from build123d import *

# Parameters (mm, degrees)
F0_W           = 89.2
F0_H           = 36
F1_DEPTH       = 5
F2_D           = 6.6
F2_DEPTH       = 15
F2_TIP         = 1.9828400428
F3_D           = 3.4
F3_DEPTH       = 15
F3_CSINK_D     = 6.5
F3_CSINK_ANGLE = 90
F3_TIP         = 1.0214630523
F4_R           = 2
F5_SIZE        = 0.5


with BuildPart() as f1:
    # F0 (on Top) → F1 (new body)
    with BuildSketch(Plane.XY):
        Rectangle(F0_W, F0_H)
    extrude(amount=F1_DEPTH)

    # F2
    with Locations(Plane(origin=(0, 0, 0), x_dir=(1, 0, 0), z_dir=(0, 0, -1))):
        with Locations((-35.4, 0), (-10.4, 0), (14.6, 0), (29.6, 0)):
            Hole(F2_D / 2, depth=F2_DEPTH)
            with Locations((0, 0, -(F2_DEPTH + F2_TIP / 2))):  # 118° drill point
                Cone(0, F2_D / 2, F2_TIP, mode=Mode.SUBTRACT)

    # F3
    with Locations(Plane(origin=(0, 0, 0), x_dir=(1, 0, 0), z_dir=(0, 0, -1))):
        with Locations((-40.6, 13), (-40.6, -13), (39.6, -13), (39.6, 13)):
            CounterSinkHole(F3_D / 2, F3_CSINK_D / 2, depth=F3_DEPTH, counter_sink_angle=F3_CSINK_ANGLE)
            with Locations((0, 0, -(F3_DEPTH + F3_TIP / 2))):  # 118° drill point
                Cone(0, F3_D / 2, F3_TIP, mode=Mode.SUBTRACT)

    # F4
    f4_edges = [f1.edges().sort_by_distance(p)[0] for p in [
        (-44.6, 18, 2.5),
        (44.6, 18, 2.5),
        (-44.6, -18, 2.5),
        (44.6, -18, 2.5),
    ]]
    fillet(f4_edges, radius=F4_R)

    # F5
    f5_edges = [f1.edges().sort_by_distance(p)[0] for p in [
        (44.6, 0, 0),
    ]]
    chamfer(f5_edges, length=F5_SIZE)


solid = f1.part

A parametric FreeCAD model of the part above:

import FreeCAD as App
import Part
import Sketcher
from FreeCAD import Vector


def edges_at(feature, points):
    """Names of the edges that pass closest to the given points."""
    edges = feature.Shape.Edges
    near = lambda p: min(range(len(edges)), key=lambda i: edges[i].distToShape(Part.Vertex(*p))[0])
    return sorted({f"Edge{near(p) + 1}" for p in points})

doc = App.newDocument("Part")
body = doc.addObject("PartDesign::Body", "Body")

# Sketch on XY plane
sketch1 = doc.addObject("Sketcher::SketchObject", "Sketch")
body.addObject(sketch1)
sketch1.AttachmentSupport = (doc.XY_Plane, [""])
sketch1.MapMode = "FlatFace"
sketch1.addGeometry([
    Part.LineSegment(Vector(-45, 18, 0), Vector(-45, -18, 0)),
    Part.LineSegment(Vector(-45, -18, 0), Vector(45, -18, 0)),
    Part.LineSegment(Vector(45, -18, 0), Vector(45, 18, 0)),
    Part.LineSegment(Vector(45, 18, 0), Vector(-45, 18, 0)),
], False)
sketch1.addConstraint([
    Sketcher.Constraint("Coincident", 0, 2, 1, 1),
    Sketcher.Constraint("Coincident", 1, 2, 2, 1),
    Sketcher.Constraint("Coincident", 2, 2, 3, 1),
    Sketcher.Constraint("Coincident", 3, 2, 0, 1),
    Sketcher.Constraint("Vertical", 0),
    Sketcher.Constraint("Horizontal", 1),
    Sketcher.Constraint("Vertical", 2),
    Sketcher.Constraint("Horizontal", 3),
    Sketcher.Constraint("Symmetric", 0, 2, 2, 2, -1, 1),
    Sketcher.Constraint("DistanceY", 0, 2, 0, 1, 36.0),
    Sketcher.Constraint("DistanceX", 1, 1, 1, 2, 89.2),
])
pad1 = doc.addObject("PartDesign::Pad", "Pad")
body.addObject(pad1)
pad1.Profile = sketch1
pad1.Length = 5

# Sketch on XY plane
sketch2 = doc.addObject("Sketcher::SketchObject", "Sketch001")
body.addObject(sketch2)
sketch2.AttachmentSupport = (doc.XY_Plane, [""])
sketch2.MapMode = "FlatFace"
sketch2.addGeometry([
    Part.Circle(Vector(-35.4, 0, 0), Vector(0, 0, 1), 3.3),
    Part.Circle(Vector(-10.4, 0, 0), Vector(0, 0, 1), 3.3),
    Part.Circle(Vector(14.6, 0, 0), Vector(0, 0, 1), 3.3),
    Part.Circle(Vector(29.6, 0, 0), Vector(0, 0, 1), 3.3),
], False)
sketch2.addConstraint([
    Sketcher.Constraint("Equal", 0, 1),
    Sketcher.Constraint("Equal", 1, 2),
    Sketcher.Constraint("Equal", 2, 3),
    Sketcher.Constraint("PointOnObject", 0, 3, -1),
    Sketcher.Constraint("PointOnObject", 1, 3, -1),
    Sketcher.Constraint("PointOnObject", 2, 3, -1),
    Sketcher.Constraint("PointOnObject", 3, 3, -1),
    Sketcher.Constraint("Diameter", 0, 6.6),
    Sketcher.Constraint("DistanceX", 0, 3, 1, 3, 25.0),
    Sketcher.Constraint("DistanceX", 1, 3, 2, 3, 25.0),
    Sketcher.Constraint("DistanceX", 2, 3, 3, 3, 15.0),
    Sketcher.Constraint("DistanceX", 0, 3, -1, 1, 35.4),
])
doc.recompute()
hole = doc.addObject("PartDesign::Hole", "Hole")
body.addObject(hole)
hole.Profile = sketch2
hole.ThreadType = "None"
hole.Diameter = 6.6
hole.DepthType = "Dimension"
hole.Depth = 15
hole.DrillPoint = "Angled"
hole.DrillPointAngle = 118
hole.Reversed = True

# Sketch on XY plane
sketch3 = doc.addObject("Sketcher::SketchObject", "Sketch002")
body.addObject(sketch3)
sketch3.AttachmentSupport = (doc.XY_Plane, [""])
sketch3.MapMode = "FlatFace"
sketch3.addGeometry([
    Part.Circle(Vector(-40.6, -13, 0), Vector(0, 0, 1), 1.7),
    Part.Circle(Vector(-40.6, 13, 0), Vector(0, 0, 1), 1.7),
    Part.Circle(Vector(39.6, 13, 0), Vector(0, 0, 1), 1.7),
    Part.Circle(Vector(39.6, -13, 0), Vector(0, 0, 1), 1.7),
], False)
sketch3.addConstraint([
    Sketcher.Constraint("Equal", 0, 1),
    Sketcher.Constraint("Equal", 1, 2),
    Sketcher.Constraint("Equal", 2, 3),
    Sketcher.Constraint("Symmetric", 0, 3, 1, 3, -1),
    Sketcher.Constraint("Symmetric", 2, 3, 3, 3, -1),
    Sketcher.Constraint("Horizontal", 1, 3, 2, 3),
    Sketcher.Constraint("Diameter", 0, 3.4),
    Sketcher.Constraint("DistanceY", 0, 3, -1, 1, 13.0),
    Sketcher.Constraint("DistanceX", 0, 3, -1, 1, 40.6),
    Sketcher.Constraint("DistanceX", -1, 1, 2, 3, 39.6),
])
doc.recompute()
hole2 = doc.addObject("PartDesign::Hole", "Hole001")
body.addObject(hole2)
hole2.Profile = sketch3
hole2.ThreadType = "None"
hole2.Diameter = 3.4
hole2.DepthType = "Dimension"
hole2.Depth = 15
hole2.DrillPoint = "Angled"
hole2.DrillPointAngle = 118
hole2.HoleCutType = "Countersink"
hole2.HoleCutDiameter = 6.5
hole2.HoleCutCountersinkAngle = 90
hole2.Reversed = True
doc.recompute()

fillet = doc.addObject("PartDesign::Fillet", "Fillet")
body.addObject(fillet)
fillet.Base = (hole2, edges_at(hole2, [
    (-44.6, 18, 2.5),
    (44.6, 18, 2.5),
    (-44.6, -18, 2.5),
    (44.6, -18, 2.5),
]))
fillet.Radius = 2
doc.recompute()

chamfer = doc.addObject("PartDesign::Chamfer", "Chamfer")
body.addObject(chamfer)
chamfer.Base = (fillet, edges_at(fillet, [(44.6, 0, 0)]))
chamfer.Size = 0.5

doc.recompute()
